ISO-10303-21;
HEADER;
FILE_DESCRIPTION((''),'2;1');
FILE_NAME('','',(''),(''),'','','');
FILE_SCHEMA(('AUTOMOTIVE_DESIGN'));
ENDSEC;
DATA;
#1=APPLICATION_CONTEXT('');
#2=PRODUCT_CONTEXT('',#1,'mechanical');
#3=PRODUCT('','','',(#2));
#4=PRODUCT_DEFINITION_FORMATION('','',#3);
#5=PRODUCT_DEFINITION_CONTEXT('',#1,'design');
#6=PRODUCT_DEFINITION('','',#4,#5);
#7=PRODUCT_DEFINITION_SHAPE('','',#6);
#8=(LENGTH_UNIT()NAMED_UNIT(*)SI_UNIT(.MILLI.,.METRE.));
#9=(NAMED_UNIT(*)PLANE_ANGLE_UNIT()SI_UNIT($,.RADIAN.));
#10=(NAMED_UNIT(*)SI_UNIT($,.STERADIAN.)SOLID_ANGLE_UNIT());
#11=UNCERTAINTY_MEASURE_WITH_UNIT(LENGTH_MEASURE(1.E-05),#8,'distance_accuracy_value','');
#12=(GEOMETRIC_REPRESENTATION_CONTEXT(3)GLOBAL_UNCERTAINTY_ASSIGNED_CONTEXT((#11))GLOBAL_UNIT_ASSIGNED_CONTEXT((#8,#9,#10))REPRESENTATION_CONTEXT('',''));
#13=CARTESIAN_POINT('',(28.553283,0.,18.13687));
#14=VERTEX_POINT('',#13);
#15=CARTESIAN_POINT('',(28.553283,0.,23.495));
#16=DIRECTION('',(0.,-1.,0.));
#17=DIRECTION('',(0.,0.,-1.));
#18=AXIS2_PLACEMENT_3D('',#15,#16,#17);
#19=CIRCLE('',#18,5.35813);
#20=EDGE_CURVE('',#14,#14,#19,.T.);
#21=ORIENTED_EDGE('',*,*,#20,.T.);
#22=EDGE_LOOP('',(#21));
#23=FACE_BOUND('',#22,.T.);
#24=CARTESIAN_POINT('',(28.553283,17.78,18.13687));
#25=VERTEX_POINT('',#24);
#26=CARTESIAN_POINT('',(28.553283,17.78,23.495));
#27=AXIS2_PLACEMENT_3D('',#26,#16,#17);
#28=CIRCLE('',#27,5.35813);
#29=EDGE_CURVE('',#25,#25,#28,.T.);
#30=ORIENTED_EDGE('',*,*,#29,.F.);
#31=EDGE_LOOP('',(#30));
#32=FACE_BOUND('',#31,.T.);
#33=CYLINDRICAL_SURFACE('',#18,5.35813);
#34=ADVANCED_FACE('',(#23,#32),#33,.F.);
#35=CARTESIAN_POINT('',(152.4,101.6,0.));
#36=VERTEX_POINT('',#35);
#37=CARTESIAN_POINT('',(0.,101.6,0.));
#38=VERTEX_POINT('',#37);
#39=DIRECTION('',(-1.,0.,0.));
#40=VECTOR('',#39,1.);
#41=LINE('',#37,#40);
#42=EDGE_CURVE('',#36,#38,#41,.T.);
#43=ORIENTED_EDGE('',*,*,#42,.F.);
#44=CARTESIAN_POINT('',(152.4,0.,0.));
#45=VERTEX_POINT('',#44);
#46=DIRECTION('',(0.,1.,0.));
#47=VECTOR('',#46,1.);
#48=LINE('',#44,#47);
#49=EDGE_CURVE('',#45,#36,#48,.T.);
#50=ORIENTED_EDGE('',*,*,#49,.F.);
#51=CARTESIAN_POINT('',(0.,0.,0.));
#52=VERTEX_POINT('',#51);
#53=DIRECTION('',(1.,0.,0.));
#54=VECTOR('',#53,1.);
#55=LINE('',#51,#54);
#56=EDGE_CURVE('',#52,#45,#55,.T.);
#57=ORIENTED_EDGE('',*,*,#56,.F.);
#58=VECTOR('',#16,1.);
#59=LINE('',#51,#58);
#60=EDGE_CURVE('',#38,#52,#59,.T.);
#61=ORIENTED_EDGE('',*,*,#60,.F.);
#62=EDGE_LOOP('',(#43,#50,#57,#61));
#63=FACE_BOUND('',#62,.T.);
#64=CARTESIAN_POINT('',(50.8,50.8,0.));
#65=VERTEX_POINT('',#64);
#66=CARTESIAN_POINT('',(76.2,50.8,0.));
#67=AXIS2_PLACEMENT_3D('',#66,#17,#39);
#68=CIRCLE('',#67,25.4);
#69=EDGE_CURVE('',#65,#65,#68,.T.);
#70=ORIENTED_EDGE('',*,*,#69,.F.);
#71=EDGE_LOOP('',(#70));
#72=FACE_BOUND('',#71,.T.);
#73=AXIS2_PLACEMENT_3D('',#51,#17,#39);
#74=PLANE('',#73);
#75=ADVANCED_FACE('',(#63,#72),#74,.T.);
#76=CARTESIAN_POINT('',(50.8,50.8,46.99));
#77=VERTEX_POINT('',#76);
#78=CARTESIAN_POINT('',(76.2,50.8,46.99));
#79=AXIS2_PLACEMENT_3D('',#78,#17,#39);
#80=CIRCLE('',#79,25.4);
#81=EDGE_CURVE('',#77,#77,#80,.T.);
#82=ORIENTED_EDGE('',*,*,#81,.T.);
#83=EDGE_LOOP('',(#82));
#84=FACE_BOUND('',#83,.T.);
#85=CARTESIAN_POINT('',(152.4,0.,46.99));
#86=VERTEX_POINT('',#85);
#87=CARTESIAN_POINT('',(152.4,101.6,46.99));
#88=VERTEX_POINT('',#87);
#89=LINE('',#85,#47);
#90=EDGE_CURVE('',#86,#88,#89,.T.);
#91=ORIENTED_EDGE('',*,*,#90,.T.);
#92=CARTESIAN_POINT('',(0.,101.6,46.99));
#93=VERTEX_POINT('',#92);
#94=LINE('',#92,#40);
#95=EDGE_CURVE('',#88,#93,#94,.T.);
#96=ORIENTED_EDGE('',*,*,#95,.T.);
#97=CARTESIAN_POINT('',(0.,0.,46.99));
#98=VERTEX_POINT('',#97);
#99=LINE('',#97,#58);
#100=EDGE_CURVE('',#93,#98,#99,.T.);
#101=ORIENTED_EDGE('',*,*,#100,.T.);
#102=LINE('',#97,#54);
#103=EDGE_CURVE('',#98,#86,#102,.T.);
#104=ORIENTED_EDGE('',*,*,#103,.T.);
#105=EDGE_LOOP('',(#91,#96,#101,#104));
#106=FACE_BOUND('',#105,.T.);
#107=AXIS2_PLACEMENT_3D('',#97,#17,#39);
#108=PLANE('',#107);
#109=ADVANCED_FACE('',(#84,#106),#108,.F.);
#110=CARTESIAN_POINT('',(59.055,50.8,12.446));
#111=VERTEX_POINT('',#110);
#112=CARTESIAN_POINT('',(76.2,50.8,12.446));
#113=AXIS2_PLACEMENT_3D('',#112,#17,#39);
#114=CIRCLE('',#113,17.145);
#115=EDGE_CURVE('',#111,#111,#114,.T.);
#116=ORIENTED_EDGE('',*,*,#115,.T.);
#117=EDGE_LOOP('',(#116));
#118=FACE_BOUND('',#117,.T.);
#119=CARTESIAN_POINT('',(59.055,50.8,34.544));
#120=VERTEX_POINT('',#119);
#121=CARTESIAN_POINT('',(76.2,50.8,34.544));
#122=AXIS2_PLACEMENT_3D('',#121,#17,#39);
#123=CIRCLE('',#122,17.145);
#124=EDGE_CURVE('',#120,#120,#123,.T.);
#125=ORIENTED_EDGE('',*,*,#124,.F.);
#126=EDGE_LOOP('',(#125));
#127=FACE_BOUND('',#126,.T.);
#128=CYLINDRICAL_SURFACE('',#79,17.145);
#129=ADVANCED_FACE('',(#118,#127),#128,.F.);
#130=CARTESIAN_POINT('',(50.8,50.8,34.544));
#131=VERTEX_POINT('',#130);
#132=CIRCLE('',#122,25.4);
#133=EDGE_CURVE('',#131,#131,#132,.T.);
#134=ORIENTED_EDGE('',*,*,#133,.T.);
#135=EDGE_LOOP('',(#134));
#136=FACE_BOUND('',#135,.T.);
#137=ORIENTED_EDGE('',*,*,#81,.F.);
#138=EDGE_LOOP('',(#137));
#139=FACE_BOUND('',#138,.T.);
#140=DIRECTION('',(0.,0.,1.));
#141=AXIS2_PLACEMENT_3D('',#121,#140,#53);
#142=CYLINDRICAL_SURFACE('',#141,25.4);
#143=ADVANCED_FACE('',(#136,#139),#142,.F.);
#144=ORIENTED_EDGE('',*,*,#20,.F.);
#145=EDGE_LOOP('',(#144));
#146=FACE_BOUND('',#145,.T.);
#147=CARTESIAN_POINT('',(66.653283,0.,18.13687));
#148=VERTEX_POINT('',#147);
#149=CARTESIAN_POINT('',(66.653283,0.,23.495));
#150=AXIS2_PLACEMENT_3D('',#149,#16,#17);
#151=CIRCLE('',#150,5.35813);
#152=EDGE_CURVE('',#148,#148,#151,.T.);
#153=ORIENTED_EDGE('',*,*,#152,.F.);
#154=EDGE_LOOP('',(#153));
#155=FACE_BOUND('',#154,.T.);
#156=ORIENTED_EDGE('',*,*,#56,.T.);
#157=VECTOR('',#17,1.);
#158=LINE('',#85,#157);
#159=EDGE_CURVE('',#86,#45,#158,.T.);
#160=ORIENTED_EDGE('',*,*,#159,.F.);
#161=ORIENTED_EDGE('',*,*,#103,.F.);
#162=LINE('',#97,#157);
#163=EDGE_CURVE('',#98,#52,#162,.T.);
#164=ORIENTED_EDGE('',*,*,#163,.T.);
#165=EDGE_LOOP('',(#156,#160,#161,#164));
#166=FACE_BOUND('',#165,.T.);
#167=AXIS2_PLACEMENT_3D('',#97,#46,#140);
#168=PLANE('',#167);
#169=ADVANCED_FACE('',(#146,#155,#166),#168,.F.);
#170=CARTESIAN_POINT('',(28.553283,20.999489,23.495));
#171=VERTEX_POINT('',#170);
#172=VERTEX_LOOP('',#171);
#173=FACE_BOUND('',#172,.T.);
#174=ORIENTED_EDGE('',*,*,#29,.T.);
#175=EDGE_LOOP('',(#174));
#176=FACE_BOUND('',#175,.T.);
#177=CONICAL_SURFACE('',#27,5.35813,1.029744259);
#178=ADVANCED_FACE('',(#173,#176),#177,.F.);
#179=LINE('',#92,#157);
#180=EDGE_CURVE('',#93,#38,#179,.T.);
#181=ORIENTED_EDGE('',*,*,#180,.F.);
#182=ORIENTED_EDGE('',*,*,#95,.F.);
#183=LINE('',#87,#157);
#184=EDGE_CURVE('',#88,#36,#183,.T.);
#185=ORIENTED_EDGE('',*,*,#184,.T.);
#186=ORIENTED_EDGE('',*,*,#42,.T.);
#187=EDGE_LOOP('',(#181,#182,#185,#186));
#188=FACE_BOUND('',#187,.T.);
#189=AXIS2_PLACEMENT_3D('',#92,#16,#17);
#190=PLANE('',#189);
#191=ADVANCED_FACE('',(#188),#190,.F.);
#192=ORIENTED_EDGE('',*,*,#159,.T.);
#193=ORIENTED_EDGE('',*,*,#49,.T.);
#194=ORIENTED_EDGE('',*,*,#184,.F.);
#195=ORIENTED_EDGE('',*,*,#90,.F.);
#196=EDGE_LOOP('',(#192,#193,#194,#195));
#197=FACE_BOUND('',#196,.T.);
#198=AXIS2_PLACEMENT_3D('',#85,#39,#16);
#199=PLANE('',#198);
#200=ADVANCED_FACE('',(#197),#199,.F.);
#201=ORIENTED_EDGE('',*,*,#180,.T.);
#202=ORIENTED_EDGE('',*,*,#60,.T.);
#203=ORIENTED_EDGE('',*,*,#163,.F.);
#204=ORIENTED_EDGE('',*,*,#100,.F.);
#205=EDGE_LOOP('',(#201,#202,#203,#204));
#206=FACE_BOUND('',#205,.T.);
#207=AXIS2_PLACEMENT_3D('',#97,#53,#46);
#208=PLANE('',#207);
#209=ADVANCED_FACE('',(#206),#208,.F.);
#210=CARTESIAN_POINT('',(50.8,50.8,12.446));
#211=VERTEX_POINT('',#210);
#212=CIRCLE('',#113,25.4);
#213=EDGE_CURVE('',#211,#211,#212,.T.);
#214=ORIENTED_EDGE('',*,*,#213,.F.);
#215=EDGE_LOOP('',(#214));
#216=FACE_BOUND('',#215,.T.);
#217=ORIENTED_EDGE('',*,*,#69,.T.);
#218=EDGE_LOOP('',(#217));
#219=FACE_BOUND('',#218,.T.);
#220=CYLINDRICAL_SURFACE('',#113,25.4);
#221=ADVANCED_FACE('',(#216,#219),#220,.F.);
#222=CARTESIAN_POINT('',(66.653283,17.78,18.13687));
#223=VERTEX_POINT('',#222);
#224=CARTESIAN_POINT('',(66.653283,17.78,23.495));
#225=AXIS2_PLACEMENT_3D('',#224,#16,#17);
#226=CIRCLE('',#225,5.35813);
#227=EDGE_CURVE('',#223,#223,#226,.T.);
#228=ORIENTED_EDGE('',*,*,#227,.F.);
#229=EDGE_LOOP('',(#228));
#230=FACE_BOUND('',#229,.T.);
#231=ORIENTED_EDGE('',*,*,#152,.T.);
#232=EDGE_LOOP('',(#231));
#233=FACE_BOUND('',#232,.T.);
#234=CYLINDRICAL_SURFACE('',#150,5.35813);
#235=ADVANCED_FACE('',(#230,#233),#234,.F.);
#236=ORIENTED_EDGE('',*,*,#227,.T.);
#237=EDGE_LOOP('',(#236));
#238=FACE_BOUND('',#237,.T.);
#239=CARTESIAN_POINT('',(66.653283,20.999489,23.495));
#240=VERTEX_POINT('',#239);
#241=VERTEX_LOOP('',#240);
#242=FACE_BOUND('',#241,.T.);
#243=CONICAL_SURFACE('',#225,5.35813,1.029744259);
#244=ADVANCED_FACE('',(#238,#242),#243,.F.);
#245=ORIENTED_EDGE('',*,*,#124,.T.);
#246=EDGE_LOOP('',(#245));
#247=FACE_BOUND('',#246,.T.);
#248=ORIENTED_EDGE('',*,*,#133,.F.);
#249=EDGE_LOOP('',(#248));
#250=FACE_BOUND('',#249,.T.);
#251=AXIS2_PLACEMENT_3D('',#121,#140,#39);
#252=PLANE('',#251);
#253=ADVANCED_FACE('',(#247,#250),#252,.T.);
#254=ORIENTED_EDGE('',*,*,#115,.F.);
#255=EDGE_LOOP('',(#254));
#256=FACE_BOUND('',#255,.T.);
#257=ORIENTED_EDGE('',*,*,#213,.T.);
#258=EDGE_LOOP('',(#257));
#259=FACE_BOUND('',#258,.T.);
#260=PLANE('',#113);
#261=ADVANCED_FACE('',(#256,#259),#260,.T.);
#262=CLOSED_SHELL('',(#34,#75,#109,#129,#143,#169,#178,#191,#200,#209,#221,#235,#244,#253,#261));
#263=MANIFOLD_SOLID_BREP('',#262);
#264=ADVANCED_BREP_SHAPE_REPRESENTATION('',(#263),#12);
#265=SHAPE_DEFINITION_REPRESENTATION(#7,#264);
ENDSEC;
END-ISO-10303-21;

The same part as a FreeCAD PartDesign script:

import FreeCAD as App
import Part
import Sketcher

V = App.Vector
Q = App.Units.Quantity


def add_polygon(sketch, points):
    """Adds a closed chain of lines whose ends are joined by coincident constraints."""
    first, n = sketch.GeometryCount, len(points)
    for a, b in zip(points, points[1:] + points[:1]):
        sketch.addGeometry(Part.LineSegment(App.Vector(*a, 0), App.Vector(*b, 0)), False)
    for i in range(n):
        sketch.addConstraint(Sketcher.Constraint("Coincident", first + i, 2, first + (i + 1) % n, 1))

doc = App.newDocument("Part")
body = doc.addObject("PartDesign::Body", "Body")

sketch1 = doc.addObject("Sketcher::SketchObject", "Sketch")
body.addObject(sketch1)
sketch1.AttachmentSupport = (doc.XY_Plane, [""])
sketch1.MapMode = "FlatFace"
add_polygon(sketch1, [(0, 102), (0, 0), (152, 0), (152, 102)])
sketch1.addConstraint(Sketcher.Constraint("Vertical", 0))
sketch1.addConstraint(Sketcher.Constraint("Horizontal", 1))
sketch1.addConstraint(Sketcher.Constraint("Vertical", 2))
sketch1.addConstraint(Sketcher.Constraint("Horizontal", 3))
sketch1.addConstraint(Sketcher.Constraint("Coincident", 0, 2, -1, 1))
sketch1.addConstraint(Sketcher.Constraint("DistanceX", 1, 1, 1, 2, Q("6 in")))
sketch1.addConstraint(Sketcher.Constraint("DistanceY", 0, 2, 0, 1, Q("4 in")))
pad1 = doc.addObject("PartDesign::Pad", "Pad")
body.addObject(pad1)
pad1.Profile = sketch1
pad1.Length = Q("1.85 in")

sketch2 = doc.addObject("Sketcher::SketchObject", "Sketch001")
body.addObject(sketch2)
sketch2.AttachmentSupport = (doc.XY_Plane, [""])
sketch2.MapMode = "FlatFace"
sketch2.addGeometry(Part.Circle(V(76, 51, 0), V(0, 0, 1), 17), False)
sketch2.addConstraint(Sketcher.Constraint("Diameter", 0, Q("1.35 in")))
sketch2.addConstraint(Sketcher.Constraint("DistanceX", -1, 1, 0, 3, Q("3 in")))
sketch2.addConstraint(Sketcher.Constraint("DistanceY", -1, 1, 0, 3, Q("2 in")))
pocket1 = doc.addObject("PartDesign::Pocket", "Pocket")
body.addObject(pocket1)
pocket1.Profile = sketch2
pocket1.Type = "ThroughAll"
pocket1.Reversed = True

sketch3 = doc.addObject("Sketcher::SketchObject", "Sketch002")
body.addObject(sketch3)
sketch3.AttachmentSupport = (doc.XY_Plane, [""])
sketch3.MapMode = "FlatFace"
sketch3.addGeometry(Part.Circle(V(76, 51, 0), V(0, 0, 1), 25), False)
sketch3.addGeometry(Part.Circle(V(76, 51, 0), V(0, 0, 1), 17), False)
sketch3.addConstraint(Sketcher.Constraint("Coincident", 1, 3, 0, 3))
sketch3.addConstraint(Sketcher.Constraint("Diameter", 0, Q("2 in")))
sketch3.addConstraint(Sketcher.Constraint("Diameter", 1, Q("1.35 in")))
sketch3.addConstraint(Sketcher.Constraint("DistanceX", -1, 1, 0, 3, Q("3 in")))
sketch3.addConstraint(Sketcher.Constraint("DistanceY", -1, 1, 0, 3, Q("2 in")))
pocket2 = doc.addObject("PartDesign::Pocket", "Pocket001")
body.addObject(pocket2)
pocket2.Profile = sketch3
pocket2.Length = Q("0.49 in")
pocket2.Reversed = True
doc.recompute()

datumplane = doc.addObject("PartDesign::Plane", "DatumPlane")
body.addObject(datumplane)
datumplane.AttachmentSupport = (doc.XY_Plane, [""])
datumplane.MapMode = "FlatFace"
datumplane.AttachmentOffset = App.Placement(V(0, 0, 0.925 * 25.4), App.Rotation())
mirrored = doc.addObject("PartDesign::Mirrored", "Mirrored")
body.addObject(mirrored)
mirrored.Originals = [pocket2]
mirrored.MirrorPlane = (datumplane, [""])
body.Tip = mirrored

sketch4 = doc.addObject("Sketcher::SketchObject", "Sketch003")
body.addObject(sketch4)
sketch4.AttachmentSupport = (doc.XZ_Plane, [""])
sketch4.MapMode = "FlatFace"
sketch4.addGeometry(Part.Circle(V(67, 23, 0), V(0, 0, 1), 5), False)
sketch4.addGeometry(Part.Circle(V(29, 23, 0), V(0, 0, 1), 5), False)
sketch4.addConstraint(Sketcher.Constraint("Equal", 0, 1))
sketch4.addConstraint(Sketcher.Constraint("Horizontal", 0, 3, 1, 3))
sketch4.addConstraint(Sketcher.Constraint("Diameter", 0, Q("0.4219 in")))
sketch4.addConstraint(Sketcher.Constraint("DistanceX", 1, 3, 0, 3, Q("1.5 in")))
sketch4.addConstraint(Sketcher.Constraint("DistanceY", -1, 1, 0, 3, Q("0.925 in")))
sketch4.addConstraint(Sketcher.Constraint("DistanceX", -1, 1, 0, 3, 66.653283))
doc.recompute()
hole = doc.addObject("PartDesign::Hole", "Hole")
body.addObject(hole)
hole.Profile = sketch4
hole.ThreadType = "None"
hole.Diameter = Q("0.4219 in")
hole.DepthType = "Dimension"
hole.Depth = Q("0.7 in")
hole.DrillPoint = "Angled"
hole.DrillPointAngle = 118

doc.recompute()
